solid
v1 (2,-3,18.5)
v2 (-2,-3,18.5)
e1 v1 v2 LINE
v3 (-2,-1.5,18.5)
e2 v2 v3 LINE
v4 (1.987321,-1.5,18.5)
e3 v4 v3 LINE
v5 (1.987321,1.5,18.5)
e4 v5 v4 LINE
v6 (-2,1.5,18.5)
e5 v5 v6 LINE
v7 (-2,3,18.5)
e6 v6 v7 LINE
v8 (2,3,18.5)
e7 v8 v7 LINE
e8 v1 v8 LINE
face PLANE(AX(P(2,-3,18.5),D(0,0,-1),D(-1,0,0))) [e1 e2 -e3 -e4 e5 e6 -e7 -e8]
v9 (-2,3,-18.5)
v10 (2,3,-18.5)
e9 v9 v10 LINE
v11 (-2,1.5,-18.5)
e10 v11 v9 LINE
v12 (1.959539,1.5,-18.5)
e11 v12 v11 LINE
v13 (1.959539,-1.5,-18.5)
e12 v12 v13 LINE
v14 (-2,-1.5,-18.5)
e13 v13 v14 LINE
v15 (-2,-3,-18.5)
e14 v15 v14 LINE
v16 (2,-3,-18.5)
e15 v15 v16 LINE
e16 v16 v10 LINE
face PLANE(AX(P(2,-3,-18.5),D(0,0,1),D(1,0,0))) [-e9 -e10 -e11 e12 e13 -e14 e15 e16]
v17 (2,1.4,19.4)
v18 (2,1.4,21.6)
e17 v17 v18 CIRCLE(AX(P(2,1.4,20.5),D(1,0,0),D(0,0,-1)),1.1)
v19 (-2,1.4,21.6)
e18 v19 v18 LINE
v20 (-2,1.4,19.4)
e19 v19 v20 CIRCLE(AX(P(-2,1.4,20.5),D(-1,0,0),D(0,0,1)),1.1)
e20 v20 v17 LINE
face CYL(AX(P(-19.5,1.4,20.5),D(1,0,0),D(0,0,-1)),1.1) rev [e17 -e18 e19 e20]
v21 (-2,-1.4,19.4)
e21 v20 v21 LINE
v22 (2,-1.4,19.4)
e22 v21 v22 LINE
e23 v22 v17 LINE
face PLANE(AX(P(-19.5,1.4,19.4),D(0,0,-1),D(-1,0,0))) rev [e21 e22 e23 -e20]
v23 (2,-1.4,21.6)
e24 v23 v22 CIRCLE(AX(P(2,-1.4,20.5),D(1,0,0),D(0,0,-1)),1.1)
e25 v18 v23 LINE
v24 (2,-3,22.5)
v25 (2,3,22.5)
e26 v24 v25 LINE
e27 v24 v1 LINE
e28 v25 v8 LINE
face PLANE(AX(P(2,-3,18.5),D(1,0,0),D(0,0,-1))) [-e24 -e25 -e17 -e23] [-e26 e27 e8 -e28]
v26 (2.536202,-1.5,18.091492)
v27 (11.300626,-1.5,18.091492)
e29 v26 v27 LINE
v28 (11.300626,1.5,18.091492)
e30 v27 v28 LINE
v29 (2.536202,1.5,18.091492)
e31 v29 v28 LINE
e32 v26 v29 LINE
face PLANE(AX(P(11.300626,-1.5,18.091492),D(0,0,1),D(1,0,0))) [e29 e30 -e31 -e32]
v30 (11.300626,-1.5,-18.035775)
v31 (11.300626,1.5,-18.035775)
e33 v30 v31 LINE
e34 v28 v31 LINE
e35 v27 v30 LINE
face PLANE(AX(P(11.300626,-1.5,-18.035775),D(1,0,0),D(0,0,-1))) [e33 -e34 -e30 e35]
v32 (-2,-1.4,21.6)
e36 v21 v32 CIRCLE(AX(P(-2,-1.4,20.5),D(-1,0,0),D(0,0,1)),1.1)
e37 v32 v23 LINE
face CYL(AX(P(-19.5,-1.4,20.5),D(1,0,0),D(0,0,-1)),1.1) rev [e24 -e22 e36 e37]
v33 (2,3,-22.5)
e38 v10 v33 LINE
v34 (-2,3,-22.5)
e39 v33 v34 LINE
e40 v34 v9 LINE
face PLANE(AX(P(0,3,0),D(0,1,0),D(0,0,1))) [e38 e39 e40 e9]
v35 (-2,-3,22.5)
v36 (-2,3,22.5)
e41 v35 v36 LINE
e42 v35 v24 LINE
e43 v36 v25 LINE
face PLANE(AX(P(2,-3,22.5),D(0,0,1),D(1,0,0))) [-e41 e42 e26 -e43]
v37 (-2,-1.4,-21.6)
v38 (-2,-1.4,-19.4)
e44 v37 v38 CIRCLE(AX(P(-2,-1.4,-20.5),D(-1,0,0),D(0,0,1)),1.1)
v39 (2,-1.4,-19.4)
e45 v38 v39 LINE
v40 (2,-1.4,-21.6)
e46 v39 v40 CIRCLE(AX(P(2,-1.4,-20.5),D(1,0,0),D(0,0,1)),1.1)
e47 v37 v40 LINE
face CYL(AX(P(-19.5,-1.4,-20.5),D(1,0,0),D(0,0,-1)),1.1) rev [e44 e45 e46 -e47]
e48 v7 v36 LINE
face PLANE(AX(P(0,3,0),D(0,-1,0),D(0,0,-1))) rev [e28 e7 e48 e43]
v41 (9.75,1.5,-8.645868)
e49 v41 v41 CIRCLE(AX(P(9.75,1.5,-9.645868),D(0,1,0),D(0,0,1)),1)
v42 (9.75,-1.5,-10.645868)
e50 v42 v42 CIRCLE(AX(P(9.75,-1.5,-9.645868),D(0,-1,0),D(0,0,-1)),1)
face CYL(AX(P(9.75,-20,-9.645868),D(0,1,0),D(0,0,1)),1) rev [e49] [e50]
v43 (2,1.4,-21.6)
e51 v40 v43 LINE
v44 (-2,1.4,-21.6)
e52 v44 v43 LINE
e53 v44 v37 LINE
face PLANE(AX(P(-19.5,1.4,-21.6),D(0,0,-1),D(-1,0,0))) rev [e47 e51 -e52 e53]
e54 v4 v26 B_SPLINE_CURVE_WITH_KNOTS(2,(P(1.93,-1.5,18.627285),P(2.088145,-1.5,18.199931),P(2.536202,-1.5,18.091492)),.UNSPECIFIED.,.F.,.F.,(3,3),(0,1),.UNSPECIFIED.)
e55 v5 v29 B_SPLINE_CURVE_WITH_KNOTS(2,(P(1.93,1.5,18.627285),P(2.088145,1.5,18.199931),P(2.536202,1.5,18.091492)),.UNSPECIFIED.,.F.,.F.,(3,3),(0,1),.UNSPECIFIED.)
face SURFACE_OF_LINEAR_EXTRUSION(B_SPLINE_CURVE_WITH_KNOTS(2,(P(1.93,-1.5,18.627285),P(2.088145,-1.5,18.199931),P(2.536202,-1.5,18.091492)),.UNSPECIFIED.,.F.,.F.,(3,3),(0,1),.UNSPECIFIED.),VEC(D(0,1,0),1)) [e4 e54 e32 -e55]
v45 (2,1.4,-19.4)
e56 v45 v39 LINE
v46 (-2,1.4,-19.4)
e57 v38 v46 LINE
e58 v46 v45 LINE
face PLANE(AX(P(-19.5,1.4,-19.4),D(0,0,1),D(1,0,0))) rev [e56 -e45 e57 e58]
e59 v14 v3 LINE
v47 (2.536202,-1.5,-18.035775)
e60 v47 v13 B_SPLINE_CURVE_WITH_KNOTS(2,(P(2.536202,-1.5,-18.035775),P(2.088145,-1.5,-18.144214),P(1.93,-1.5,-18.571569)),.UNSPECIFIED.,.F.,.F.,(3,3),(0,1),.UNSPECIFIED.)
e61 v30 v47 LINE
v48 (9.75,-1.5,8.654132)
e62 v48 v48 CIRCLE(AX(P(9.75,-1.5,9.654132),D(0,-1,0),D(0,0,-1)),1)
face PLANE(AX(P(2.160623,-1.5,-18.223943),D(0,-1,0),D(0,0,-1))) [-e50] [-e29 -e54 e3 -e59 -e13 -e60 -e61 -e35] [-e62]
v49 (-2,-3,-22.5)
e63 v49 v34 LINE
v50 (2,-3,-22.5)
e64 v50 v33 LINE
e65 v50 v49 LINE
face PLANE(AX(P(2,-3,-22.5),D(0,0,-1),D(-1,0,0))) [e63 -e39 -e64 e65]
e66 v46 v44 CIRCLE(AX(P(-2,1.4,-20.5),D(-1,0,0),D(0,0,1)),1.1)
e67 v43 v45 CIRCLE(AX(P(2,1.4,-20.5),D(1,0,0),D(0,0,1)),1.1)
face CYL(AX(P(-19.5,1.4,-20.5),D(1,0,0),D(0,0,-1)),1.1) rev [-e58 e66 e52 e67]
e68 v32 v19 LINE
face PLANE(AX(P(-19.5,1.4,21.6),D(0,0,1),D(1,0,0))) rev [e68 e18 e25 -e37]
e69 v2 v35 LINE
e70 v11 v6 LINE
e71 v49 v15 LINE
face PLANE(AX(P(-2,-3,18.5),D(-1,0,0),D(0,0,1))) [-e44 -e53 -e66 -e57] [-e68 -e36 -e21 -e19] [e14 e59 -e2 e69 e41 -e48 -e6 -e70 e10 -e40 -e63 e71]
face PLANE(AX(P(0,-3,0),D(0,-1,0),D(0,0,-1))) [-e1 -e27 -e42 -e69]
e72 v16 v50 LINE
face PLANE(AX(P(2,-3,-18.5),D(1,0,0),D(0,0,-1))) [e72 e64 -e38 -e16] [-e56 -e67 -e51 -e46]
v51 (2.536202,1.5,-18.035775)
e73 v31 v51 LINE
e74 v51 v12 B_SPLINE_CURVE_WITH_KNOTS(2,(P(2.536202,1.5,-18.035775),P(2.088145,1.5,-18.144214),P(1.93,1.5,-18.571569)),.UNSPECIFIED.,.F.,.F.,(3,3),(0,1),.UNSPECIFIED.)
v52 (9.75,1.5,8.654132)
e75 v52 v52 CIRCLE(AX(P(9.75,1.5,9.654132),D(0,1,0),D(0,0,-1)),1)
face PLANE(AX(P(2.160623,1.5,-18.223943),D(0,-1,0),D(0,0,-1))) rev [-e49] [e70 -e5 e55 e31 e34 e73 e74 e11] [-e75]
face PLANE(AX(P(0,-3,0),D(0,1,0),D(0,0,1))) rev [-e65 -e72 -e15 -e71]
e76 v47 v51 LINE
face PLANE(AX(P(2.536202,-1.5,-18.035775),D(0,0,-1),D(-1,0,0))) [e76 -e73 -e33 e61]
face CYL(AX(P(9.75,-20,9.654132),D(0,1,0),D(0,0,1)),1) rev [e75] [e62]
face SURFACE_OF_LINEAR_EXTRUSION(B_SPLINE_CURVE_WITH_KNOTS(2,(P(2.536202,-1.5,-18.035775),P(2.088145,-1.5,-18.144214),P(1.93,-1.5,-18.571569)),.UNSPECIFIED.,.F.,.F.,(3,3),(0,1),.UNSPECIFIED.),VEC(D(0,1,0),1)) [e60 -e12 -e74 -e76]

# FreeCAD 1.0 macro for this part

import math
import FreeCAD as App
import Part
import Sketcher

V = App.Vector
Q = App.Units.Quantity


def add_polygon(sketch, points):
    """Adds a closed chain of lines whose ends are joined by coincident constraints."""
    first, n = sketch.GeometryCount, len(points)
    for a, b in zip(points, points[1:] + points[:1]):
        sketch.addGeometry(Part.LineSegment(App.Vector(*a, 0), App.Vector(*b, 0)), False)
    for i in range(n):
        sketch.addConstraint(Sketcher.Constraint("Coincident", first + i, 2, first + (i + 1) % n, 1))

doc = App.newDocument("Part")
params = doc.addObject("Spreadsheet::Sheet", "Params")
for row, (alias, value) in enumerate([
    ("sketch1_width", "4 mm"),
    ("pad1_length", "3 mm"),
    ("pad1_length2", "3 mm"),
    ("sketch2_width", "4 mm"),
    ("pad2_length", "3 mm"),
    ("pad2_length2", "3 mm"),
    ("pad3_length", "1.5 mm"),
    ("pad3_length2", "1.5 mm"),
    ("sketch4_diameter", "2 mm"),
    ("pocket1_length", "21.5 mm"),
    ("sketch5_radius", "1.1 mm"),
    ("sketch5_width", "2.8 mm"),
    ("pocket2_length", "21.5 mm"),
], start=1):
    params.set(f"A{row}", alias)
    params.set(f"B{row}", "=" + value)
    params.setAlias(f"B{row}", alias)

body = doc.addObject("PartDesign::Body", "Body")

sketch1 = body.newObject("Sketcher::SketchObject", "Sketch")
sketch1.AttachmentSupport = (doc.getObject("XZ_Plane"), [""])
sketch1.MapMode = "FlatFace"
add_polygon(sketch1, [(-2, -22.5), (-2, -18.5), (2, -18.5), (2, -22.5)])
sketch1.addConstraint([
    Sketcher.Constraint("Vertical", 0),
    Sketcher.Constraint("Horizontal", 1),
    Sketcher.Constraint("Vertical", 2),
    Sketcher.Constraint("Horizontal", 3),
    Sketcher.Constraint("Equal", 3, 0),
    Sketcher.Constraint("DistanceX", 1, 1, 1, 2, Q("4 mm")),
    Sketcher.Constraint("DistanceX", 0, 2, -1, 1, Q("2 mm")),
    Sketcher.Constraint("DistanceY", 0, 2, -1, 1, Q("18.5 mm")),
])
sketch1.setExpression("Constraints[9]", "Params.sketch1_width")
pad1 = body.newObject("PartDesign::Pad", "Pad")
pad1.Profile = sketch1
pad1.Type = "TwoLengths"
pad1.setExpression("Length", "Params.pad1_length")
pad1.setExpression("Length2", "Params.pad1_length2")
pad1.Reversed = True
body2 = doc.addObject("PartDesign::Body", "Body001")

sketch2 = body2.newObject("Sketcher::SketchObject", "Sketch001")
sketch2.AttachmentSupport = (doc.getObject("XZ_Plane001"), [""])
sketch2.MapMode = "FlatFace"
add_polygon(sketch2, [(-2, 18.5), (-2, 22.5), (2, 22.5), (2, 18.5)])
sketch2.addConstraint([
    Sketcher.Constraint("Vertical", 0),
    Sketcher.Constraint("Horizontal", 1),
    Sketcher.Constraint("Vertical", 2),
    Sketcher.Constraint("Horizontal", 3),
    Sketcher.Constraint("Equal", 3, 0),
    Sketcher.Constraint("DistanceX", 1, 1, 1, 2, Q("4 mm")),
    Sketcher.Constraint("DistanceX", 0, 2, -1, 1, Q("2 mm")),
    Sketcher.Constraint("DistanceY", -1, 1, 0, 2, Q("22.5 mm")),
])
sketch2.setExpression("Constraints[9]", "Params.sketch2_width")
pad2 = body2.newObject("PartDesign::Pad", "Pad001")
pad2.Profile = sketch2
pad2.Type = "TwoLengths"
pad2.setExpression("Length", "Params.pad2_length")
pad2.setExpression("Length2", "Params.pad2_length2")
pad2.Reversed = True
body.AllowCompound = True
doc.recompute()

boolean = body.newObject("PartDesign::Boolean", "Boolean")
boolean.Type = "Fuse"
boolean.addObjects([body2])

sketch3 = body.newObject("Sketcher::SketchObject", "Sketch002")
sketch3.AttachmentSupport = (doc.getObject("XZ_Plane"), [""])
sketch3.MapMode = "FlatFace"
sketch3.addGeometry([
    Part.LineSegment(V(1.93, -18.571569, 0), V(-2, -18.571569, 0)),
    Part.LineSegment(V(-2, -18.571569, 0), V(-2, 18.627285, 0)),
    Part.LineSegment(V(-2, 18.627285, 0), V(1.93, 18.627285, 0)),
    Part.BSplineCurve([V(2.536202, 18.091492, 0), V(2.088145, 18.199931, 0), V(1.93, 18.627285, 0)], [3, 3], [0, 1], False, 2, [1, 1, 1], False),
    Part.LineSegment(V(2.536202, 18.091492, 0), V(11.300626, 18.091492, 0)),
    Part.LineSegment(V(11.300626, 18.091492, 0), V(11.300626, -18.035775, 0)),
    Part.LineSegment(V(11.300626, -18.035775, 0), V(2.536202, -18.035775, 0)),
    Part.BSplineCurve([V(1.93, -18.571569, 0), V(2.088145, -18.144214, 0), V(2.536202, -18.035775, 0)], [3, 3], [0, 1], False, 2, [1, 1, 1], False),
], False)
sketch3.addConstraint([
    Sketcher.Constraint("Block", 3),
    Sketcher.Constraint("Block", 7),
    Sketcher.Constraint("Coincident", 0, 2, 1, 1),
    Sketcher.Constraint("Coincident", 1, 2, 2, 1),
    Sketcher.Constraint("Coincident", 2, 2, 3, 2),
    Sketcher.Constraint("Coincident", 3, 1, 4, 1),
    Sketcher.Constraint("Coincident", 4, 2, 5, 1),
    Sketcher.Constraint("Coincident", 5, 2, 6, 1),
    Sketcher.Constraint("Coincident", 6, 2, 7, 2),
    Sketcher.Constraint("Coincident", 7, 1, 0, 1),
    Sketcher.Constraint("Horizontal", 0),
    Sketcher.Constraint("Vertical", 1),
    Sketcher.Constraint("Horizontal", 2),
    Sketcher.Constraint("Horizontal", 4),
    Sketcher.Constraint("Vertical", 5),
    Sketcher.Constraint("Horizontal", 6),
    Sketcher.Constraint("DistanceX", 0, 2, -1, 1, Q("2 mm")),
    Sketcher.Constraint("DistanceX", 4, 1, 4, 2, Q("8.764424 mm")),
])
pad3 = body.newObject("PartDesign::Pad", "Pad002")
pad3.Profile = sketch3
pad3.Type = "TwoLengths"
pad3.setExpression("Length", "Params.pad3_length")
pad3.setExpression("Length2", "Params.pad3_length2")
pad3.Reversed = True

sketch4 = body.newObject("Sketcher::SketchObject", "Sketch003")
sketch4.AttachmentSupport = (doc.getObject("XZ_Plane"), [""])
sketch4.MapMode = "FlatFace"
sketch4.AttachmentOffset = App.Placement(V(0, 0, -1.5), App.Rotation())
sketch4.addGeometry([
    Part.Circle(V(9.75, -9.645868, 0), V(0, 0, 1), 1),
    Part.Circle(V(9.75, 9.654132, 0), V(0, 0, 1), 1),
], False)
sketch4.addConstraint([
    Sketcher.Constraint("Equal", 0, 1),
    Sketcher.Constraint("Vertical", 0, 3, 1, 3),
    Sketcher.Constraint("Diameter", 0, Q("2 mm")),
    Sketcher.Constraint("DistanceY", 0, 3, 1, 3, Q("19.3 mm")),
    Sketcher.Constraint("DistanceX", -1, 1, 0, 3, Q("9.75 mm")),
    Sketcher.Constraint("DistanceY", 0, 3, -1, 1, Q("9.645868 mm")),
])
sketch4.setExpression("Constraints[2]", "Params.sketch4_diameter")
pocket1 = body.newObject("PartDesign::Pocket", "Pocket")
pocket1.Profile = sketch4
pocket1.setExpression("Length", "Params.pocket1_length")
pocket1.Reversed = True

sketch5 = body.newObject("Sketcher::SketchObject", "Sketch004")
sketch5.AttachmentSupport = (doc.getObject("YZ_Plane"), [""])
sketch5.MapMode = "FlatFace"
sketch5.AttachmentOffset = App.Placement(V(0, 0, 2), App.Rotation())
sketch5.addGeometry([
    Part.LineSegment(V(-1.4, 19.4, 0), V(1.4, 19.4, 0)),
    Part.ArcOfCircle(Part.Circle(V(1.4, 20.5, 0), V(0, 0, 1), 1.1), math.radians(-90), math.radians(90)),
    Part.LineSegment(V(1.4, 21.6, 0), V(-1.4, 21.6, 0)),
    Part.ArcOfCircle(Part.Circle(V(-1.4, 20.5, 0), V(0, 0, 1), 1.1), math.radians(90), math.radians(270)),
    Part.LineSegment(V(1.4, -19.4, 0), V(-1.4, -19.4, 0)),
    Part.ArcOfCircle(Part.Circle(V(-1.4, -20.5, 0), V(0, 0, 1), 1.1), math.radians(90), math.radians(270)),
    Part.LineSegment(V(-1.4, -21.6, 0), V(1.4, -21.6, 0)),
    Part.ArcOfCircle(Part.Circle(V(1.4, -20.5, 0), V(0, 0, 1), 1.1), math.radians(-90), math.radians(90)),
], False)
sketch5.addConstraint([
    Sketcher.Constraint("Tangent", 0, 2, 1, 1),
    Sketcher.Constraint("Tangent", 1, 2, 2, 1),
    Sketcher.Constraint("Tangent", 2, 2, 3, 1),
    Sketcher.Constraint("Tangent", 3, 2, 0, 1),
    Sketcher.Constraint("Tangent", 4, 2, 5, 1),
    Sketcher.Constraint("Tangent", 5, 2, 6, 1),
    Sketcher.Constraint("Tangent", 6, 2, 7, 1),
    Sketcher.Constraint("Tangent", 7, 2, 4, 1),
    Sketcher.Constraint("Horizontal", 0),
    Sketcher.Constraint("Horizontal", 2),
    Sketcher.Constraint("Horizontal", 4),
    Sketcher.Constraint("Horizontal", 6),
    Sketcher.Constraint("Equal", 3, 5),
    Sketcher.Constraint("Symmetric", 1, 3, 5, 3, -1, 1),
    Sketcher.Constraint("Vertical", 3, 3, 5, 3),
    Sketcher.Constraint("Vertical", 1, 3, 7, 3),
    Sketcher.Constraint("Radius", 1, Q("1.1 mm")),
    Sketcher.Constraint("DistanceX", 0, 1, 0, 2, Q("2.8 mm")),
    Sketcher.Constraint("DistanceY", 5, 3, 3, 3, Q("41 mm")),
])
sketch5.setExpression("Constraints[16]", "Params.sketch5_radius")
sketch5.setExpression("Constraints[17]", "Params.sketch5_width")
pocket2 = body.newObject("PartDesign::Pocket", "Pocket001")
pocket2.Profile = sketch5
pocket2.setExpression("Length", "Params.pocket2_length")

doc.recompute()
